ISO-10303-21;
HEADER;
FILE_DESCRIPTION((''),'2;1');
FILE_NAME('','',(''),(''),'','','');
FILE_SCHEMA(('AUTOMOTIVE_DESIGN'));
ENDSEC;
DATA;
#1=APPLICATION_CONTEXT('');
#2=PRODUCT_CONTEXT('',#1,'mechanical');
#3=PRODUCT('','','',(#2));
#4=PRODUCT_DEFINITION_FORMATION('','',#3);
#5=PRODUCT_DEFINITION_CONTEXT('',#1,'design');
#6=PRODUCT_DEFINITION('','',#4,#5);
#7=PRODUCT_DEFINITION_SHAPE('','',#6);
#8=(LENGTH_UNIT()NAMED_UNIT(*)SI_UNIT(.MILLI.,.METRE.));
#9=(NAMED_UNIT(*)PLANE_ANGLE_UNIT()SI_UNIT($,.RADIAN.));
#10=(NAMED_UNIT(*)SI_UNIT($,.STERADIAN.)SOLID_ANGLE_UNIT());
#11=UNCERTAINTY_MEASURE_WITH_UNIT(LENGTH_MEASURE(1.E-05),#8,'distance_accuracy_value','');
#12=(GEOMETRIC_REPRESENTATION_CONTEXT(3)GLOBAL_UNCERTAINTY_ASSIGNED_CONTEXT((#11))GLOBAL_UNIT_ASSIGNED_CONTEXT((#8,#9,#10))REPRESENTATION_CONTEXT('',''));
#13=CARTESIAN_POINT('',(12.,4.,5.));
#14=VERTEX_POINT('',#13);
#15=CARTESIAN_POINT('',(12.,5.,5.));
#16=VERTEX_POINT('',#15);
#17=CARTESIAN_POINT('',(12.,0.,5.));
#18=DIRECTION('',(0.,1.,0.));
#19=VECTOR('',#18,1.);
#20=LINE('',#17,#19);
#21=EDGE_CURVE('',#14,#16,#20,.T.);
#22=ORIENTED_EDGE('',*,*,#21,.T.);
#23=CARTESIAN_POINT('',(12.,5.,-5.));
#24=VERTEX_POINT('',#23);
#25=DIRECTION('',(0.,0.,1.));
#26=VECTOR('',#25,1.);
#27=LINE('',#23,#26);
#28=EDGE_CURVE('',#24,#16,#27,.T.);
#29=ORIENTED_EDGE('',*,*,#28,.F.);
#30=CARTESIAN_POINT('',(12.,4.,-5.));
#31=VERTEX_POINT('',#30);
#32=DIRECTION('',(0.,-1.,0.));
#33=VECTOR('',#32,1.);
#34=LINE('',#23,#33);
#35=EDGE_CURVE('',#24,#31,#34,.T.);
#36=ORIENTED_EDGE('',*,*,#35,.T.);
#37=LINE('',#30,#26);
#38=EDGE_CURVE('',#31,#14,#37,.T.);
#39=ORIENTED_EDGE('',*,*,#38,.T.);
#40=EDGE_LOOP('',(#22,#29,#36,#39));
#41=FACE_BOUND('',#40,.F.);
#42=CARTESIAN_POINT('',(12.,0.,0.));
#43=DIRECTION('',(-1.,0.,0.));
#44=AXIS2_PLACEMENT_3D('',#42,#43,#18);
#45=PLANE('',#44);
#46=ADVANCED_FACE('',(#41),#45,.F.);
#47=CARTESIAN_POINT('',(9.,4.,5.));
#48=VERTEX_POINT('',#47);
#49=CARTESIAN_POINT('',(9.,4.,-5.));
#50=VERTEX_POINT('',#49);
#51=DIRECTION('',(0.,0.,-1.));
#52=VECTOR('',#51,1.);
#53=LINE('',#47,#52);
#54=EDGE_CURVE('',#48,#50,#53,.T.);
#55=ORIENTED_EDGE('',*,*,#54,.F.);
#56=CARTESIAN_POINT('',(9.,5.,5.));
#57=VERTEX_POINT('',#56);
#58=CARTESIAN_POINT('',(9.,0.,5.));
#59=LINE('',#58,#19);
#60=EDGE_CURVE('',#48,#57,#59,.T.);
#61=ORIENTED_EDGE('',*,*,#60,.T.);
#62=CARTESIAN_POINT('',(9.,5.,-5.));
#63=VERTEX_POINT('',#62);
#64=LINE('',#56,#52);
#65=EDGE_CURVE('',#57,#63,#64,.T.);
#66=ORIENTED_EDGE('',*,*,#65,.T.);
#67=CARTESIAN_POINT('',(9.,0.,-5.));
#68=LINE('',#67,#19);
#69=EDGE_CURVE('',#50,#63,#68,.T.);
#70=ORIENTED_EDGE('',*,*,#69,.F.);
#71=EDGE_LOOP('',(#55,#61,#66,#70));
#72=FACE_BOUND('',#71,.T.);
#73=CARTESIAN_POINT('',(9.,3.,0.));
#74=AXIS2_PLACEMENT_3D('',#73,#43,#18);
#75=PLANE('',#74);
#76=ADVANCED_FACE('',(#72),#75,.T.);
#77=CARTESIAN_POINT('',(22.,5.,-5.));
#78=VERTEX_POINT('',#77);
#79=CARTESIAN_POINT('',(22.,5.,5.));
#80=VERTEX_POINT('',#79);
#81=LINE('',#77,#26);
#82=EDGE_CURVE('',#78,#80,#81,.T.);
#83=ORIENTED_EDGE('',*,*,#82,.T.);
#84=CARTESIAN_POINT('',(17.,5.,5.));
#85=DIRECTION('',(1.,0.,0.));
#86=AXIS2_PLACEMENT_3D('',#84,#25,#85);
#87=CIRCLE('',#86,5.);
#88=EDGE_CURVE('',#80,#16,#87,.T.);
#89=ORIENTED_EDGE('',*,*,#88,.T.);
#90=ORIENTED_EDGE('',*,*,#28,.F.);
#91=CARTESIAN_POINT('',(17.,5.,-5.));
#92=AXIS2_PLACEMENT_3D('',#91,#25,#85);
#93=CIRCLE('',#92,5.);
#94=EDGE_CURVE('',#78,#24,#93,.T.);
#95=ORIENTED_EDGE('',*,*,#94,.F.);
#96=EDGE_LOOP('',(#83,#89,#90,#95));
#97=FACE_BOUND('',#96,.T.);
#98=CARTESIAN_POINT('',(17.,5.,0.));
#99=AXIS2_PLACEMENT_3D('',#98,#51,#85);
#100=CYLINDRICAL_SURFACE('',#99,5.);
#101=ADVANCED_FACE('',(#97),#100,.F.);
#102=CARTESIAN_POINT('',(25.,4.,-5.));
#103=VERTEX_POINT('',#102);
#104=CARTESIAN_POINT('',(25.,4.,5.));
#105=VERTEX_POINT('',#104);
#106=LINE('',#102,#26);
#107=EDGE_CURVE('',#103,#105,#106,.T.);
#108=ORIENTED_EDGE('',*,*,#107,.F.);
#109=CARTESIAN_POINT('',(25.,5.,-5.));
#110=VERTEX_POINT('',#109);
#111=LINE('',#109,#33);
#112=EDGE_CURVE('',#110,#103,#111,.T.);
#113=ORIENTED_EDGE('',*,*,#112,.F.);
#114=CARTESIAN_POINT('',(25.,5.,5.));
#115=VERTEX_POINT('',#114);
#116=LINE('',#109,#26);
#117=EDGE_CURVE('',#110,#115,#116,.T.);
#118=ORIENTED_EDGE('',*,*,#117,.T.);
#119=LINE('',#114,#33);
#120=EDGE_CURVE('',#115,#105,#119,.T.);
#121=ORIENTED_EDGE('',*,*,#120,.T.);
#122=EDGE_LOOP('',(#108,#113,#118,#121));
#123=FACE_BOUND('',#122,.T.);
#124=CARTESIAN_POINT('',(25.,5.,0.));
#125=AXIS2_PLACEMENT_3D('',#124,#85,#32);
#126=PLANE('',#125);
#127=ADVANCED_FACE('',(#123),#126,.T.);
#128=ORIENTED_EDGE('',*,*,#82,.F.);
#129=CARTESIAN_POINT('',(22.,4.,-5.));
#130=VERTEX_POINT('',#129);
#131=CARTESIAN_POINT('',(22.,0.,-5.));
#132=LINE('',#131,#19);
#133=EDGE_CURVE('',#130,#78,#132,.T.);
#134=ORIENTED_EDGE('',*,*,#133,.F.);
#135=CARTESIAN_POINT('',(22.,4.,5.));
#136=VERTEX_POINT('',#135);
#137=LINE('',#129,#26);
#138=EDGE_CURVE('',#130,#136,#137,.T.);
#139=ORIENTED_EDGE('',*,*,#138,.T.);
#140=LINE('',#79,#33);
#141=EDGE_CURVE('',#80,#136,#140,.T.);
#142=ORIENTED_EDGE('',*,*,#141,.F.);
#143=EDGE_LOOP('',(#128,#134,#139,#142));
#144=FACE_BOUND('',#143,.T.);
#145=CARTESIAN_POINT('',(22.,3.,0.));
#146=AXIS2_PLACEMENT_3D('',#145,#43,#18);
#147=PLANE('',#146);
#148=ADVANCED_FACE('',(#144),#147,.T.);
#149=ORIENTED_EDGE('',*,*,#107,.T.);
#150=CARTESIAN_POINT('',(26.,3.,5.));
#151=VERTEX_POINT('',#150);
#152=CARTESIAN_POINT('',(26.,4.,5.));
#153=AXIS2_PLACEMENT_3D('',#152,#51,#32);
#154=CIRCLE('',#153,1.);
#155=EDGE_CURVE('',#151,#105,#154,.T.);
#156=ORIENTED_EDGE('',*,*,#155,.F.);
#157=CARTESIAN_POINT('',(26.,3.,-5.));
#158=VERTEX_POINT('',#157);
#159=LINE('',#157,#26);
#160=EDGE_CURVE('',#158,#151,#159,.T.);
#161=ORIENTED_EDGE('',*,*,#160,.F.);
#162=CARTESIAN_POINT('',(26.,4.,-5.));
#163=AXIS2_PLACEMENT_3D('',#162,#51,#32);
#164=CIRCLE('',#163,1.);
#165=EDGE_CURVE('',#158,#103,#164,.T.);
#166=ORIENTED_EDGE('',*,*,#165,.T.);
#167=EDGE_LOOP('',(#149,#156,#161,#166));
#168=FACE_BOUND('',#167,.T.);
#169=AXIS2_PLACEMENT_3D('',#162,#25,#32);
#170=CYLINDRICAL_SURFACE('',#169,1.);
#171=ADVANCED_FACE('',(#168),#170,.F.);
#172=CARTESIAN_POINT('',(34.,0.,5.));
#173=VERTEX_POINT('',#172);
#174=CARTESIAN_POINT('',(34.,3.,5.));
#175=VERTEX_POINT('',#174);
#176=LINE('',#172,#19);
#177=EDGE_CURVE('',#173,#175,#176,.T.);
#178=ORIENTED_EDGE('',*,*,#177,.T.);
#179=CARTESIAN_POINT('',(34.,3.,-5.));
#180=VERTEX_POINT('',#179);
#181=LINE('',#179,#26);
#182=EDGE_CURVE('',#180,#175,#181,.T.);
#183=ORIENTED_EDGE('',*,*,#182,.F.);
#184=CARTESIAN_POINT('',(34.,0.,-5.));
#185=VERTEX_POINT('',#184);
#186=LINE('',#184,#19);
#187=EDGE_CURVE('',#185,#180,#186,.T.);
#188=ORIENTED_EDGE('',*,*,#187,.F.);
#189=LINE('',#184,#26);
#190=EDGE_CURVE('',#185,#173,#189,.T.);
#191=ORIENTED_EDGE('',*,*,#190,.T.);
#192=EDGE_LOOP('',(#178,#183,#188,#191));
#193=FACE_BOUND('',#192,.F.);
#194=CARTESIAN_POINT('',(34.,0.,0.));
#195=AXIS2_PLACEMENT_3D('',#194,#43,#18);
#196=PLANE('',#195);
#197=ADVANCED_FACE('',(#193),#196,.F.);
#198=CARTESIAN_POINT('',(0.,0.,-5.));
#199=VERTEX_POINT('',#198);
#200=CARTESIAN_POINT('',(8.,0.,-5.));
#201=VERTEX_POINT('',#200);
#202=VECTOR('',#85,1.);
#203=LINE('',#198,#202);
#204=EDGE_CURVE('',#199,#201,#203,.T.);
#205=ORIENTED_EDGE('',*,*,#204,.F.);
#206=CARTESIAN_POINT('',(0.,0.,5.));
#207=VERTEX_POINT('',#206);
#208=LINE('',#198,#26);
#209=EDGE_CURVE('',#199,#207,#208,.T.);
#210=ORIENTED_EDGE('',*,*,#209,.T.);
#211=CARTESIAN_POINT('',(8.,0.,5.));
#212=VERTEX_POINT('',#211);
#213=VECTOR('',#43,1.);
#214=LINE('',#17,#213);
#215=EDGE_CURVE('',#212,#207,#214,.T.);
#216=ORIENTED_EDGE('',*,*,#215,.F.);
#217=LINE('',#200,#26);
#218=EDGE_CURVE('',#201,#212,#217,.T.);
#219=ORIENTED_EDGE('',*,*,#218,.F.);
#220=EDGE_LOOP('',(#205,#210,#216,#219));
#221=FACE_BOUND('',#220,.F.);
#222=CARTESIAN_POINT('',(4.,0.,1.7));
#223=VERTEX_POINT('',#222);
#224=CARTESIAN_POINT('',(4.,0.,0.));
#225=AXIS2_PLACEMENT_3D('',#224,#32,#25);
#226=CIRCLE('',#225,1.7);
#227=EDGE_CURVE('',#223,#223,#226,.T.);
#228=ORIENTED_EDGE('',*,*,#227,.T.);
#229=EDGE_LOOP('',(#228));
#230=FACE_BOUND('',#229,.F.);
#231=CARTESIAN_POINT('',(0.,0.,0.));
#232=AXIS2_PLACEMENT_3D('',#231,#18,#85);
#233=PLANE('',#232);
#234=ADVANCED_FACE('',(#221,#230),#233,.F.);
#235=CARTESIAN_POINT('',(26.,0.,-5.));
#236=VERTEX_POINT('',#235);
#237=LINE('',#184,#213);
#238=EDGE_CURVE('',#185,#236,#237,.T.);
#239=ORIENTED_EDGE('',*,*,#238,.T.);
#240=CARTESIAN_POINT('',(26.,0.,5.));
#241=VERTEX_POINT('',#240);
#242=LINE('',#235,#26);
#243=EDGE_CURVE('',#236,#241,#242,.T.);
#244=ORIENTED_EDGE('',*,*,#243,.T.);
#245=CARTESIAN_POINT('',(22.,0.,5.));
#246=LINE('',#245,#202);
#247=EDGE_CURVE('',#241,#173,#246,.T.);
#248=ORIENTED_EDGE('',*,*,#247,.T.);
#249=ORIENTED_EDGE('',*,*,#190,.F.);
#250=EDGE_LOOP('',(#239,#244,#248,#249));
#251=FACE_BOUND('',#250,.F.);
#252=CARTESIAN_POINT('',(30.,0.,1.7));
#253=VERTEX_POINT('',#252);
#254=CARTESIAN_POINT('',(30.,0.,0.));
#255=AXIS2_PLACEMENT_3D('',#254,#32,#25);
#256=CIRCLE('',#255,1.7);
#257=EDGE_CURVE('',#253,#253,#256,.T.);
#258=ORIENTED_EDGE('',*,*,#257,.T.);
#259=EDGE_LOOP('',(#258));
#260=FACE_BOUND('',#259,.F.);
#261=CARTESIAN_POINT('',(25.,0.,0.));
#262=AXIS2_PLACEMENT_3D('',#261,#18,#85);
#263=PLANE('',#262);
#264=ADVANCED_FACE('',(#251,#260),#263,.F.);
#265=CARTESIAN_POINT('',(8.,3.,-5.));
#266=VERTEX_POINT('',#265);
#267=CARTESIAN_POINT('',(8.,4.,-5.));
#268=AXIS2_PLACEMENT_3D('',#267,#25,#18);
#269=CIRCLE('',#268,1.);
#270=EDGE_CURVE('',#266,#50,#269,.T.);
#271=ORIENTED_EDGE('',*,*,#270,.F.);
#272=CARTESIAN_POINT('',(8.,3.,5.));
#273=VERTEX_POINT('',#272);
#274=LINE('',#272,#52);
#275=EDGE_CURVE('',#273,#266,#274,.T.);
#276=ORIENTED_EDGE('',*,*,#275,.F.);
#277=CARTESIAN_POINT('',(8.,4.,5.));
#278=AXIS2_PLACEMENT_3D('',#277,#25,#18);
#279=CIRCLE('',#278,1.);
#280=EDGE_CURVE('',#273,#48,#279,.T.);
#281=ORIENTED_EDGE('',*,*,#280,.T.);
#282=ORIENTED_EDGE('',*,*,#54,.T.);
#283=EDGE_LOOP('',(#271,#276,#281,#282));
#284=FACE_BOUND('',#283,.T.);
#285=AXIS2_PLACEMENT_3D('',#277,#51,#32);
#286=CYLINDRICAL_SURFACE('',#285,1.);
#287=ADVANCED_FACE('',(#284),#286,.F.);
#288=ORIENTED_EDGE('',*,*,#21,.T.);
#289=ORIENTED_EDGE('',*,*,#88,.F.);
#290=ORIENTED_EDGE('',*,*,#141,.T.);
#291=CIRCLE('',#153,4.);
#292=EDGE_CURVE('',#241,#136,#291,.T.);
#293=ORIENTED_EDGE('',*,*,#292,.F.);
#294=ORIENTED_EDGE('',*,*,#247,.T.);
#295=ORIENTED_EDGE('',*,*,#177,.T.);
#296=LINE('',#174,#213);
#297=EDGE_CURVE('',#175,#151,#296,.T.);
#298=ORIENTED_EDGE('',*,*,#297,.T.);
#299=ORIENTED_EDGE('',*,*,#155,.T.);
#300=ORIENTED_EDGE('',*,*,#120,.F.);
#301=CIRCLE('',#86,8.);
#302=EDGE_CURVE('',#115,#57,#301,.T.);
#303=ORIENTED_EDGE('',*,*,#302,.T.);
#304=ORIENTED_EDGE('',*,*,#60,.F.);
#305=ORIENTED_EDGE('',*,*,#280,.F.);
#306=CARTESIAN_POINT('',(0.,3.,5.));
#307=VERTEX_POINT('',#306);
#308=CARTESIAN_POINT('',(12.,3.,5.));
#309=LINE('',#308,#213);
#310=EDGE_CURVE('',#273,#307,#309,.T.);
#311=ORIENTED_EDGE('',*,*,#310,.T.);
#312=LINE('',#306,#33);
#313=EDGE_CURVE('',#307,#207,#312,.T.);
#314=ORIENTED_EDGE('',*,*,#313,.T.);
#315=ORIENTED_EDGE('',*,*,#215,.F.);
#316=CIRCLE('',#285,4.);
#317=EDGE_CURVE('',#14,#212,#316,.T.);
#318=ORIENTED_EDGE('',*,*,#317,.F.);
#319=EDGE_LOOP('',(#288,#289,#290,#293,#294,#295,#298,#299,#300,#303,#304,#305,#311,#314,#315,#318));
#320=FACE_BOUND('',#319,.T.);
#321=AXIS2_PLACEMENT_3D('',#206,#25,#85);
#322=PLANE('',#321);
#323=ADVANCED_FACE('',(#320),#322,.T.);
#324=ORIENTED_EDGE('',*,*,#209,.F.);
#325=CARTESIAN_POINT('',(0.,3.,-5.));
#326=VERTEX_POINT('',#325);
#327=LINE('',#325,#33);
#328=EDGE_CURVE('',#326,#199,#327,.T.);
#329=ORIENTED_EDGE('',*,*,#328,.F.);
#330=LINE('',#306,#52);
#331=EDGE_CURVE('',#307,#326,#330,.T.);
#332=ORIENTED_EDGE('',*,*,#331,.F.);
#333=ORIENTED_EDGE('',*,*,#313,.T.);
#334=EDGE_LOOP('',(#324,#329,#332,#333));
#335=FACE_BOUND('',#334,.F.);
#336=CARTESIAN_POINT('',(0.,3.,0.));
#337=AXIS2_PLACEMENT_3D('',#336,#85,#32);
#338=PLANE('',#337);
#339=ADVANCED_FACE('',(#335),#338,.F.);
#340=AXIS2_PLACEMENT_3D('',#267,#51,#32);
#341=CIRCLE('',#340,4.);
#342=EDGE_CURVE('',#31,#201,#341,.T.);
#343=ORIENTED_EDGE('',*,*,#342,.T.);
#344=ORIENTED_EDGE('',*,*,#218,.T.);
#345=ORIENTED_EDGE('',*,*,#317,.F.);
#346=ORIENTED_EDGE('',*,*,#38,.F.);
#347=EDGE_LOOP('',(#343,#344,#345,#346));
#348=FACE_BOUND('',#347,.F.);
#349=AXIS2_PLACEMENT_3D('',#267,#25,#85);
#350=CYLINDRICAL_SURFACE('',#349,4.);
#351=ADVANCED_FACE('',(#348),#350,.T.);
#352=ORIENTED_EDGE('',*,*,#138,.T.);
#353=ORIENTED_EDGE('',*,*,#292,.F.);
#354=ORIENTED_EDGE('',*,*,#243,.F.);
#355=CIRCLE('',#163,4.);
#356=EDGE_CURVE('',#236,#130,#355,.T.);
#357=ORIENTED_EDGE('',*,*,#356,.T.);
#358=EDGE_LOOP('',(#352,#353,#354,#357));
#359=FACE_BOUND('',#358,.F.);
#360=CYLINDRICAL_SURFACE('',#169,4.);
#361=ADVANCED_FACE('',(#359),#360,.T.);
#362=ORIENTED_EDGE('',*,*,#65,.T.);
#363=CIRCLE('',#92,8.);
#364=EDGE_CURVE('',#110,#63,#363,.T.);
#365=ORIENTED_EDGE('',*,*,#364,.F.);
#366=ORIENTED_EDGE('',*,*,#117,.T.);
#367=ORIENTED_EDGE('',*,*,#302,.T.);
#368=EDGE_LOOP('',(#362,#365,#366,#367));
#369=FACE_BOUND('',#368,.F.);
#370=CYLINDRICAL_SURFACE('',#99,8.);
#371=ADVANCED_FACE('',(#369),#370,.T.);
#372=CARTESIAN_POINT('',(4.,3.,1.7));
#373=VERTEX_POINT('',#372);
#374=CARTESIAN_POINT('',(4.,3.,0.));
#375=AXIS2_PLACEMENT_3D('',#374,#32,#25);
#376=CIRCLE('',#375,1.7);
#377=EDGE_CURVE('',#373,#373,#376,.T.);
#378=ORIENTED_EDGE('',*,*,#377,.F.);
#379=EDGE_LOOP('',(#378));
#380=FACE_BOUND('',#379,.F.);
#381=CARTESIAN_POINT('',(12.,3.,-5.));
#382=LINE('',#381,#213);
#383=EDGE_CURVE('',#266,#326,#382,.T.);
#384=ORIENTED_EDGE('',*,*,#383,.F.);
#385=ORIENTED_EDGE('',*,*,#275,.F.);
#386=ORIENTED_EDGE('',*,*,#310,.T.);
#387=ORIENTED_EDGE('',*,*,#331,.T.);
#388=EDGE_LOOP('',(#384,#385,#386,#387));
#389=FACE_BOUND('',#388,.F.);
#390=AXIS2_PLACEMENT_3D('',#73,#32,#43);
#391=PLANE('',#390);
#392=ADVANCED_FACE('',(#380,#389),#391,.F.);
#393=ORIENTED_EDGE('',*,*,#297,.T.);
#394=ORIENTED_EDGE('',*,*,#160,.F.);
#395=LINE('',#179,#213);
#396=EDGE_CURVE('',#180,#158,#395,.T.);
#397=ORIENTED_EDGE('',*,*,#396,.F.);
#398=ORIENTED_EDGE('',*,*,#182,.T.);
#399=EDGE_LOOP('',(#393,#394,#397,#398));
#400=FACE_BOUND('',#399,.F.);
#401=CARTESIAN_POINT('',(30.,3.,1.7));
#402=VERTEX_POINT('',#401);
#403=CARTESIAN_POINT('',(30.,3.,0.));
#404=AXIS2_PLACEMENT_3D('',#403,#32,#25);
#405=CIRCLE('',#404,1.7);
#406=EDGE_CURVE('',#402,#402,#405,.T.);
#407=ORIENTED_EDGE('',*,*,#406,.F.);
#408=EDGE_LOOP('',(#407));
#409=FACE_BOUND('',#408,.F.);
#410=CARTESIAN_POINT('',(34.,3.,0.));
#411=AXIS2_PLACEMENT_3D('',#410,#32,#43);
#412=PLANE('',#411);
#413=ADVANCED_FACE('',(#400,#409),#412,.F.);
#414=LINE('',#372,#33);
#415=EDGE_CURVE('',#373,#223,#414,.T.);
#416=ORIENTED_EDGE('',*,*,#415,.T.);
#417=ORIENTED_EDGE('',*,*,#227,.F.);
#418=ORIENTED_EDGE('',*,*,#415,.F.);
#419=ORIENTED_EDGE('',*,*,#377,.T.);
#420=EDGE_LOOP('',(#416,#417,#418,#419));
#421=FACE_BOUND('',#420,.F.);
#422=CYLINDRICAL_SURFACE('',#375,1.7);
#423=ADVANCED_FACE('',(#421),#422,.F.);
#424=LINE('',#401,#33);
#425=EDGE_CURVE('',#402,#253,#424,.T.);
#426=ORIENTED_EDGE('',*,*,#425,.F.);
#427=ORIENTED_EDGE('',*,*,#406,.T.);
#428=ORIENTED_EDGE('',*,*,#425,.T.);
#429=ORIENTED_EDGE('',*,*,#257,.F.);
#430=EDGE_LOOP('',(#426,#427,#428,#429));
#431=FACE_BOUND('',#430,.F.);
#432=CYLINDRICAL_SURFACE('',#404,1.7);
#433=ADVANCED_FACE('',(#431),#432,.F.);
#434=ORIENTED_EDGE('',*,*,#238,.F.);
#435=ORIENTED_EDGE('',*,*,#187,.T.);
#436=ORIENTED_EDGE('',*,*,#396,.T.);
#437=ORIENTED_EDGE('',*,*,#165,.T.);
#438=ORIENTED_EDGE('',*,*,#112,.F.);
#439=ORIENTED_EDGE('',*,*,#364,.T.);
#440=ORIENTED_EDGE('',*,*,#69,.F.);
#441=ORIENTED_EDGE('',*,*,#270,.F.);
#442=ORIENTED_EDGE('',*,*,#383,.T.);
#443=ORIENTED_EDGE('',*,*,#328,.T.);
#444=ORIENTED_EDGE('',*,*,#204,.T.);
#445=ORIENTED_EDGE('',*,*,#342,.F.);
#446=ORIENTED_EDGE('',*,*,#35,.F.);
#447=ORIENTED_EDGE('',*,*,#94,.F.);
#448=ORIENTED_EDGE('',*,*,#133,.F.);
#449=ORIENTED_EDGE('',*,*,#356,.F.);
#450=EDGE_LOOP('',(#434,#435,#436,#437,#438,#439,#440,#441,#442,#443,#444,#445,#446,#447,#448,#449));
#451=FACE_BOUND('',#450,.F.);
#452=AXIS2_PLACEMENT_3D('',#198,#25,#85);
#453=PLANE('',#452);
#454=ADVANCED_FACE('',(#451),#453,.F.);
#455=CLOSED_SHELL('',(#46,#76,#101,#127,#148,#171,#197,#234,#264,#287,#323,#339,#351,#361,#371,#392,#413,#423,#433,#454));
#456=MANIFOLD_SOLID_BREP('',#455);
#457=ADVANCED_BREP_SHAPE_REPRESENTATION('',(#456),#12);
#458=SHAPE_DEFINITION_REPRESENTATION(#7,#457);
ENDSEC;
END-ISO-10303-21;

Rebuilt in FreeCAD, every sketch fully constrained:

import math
import FreeCAD as App
import Part
import Sketcher

V = App.Vector


def edges_at(feature, points):
    """Names of the edges that pass closest to the given points."""
    edges = feature.Shape.Edges
    near = lambda p: min(range(len(edges)), key=lambda i: edges[i].distToShape(Part.Vertex(*p))[0])
    return sorted({f"Edge{near(p) + 1}" for p in points})

doc = App.newDocument("Part")
body = doc.addObject("PartDesign::Body", "Body")

# Sketch on XY plane
sketch1 = body.newObject("Sketcher::SketchObject", "Sketch")
sketch1.AttachmentSupport = (doc.getObject("XY_Plane"), [""])
sketch1.MapMode = "FlatFace"
sketch1.addGeometry(Part.LineSegment(V(0, 3, 0), V(0, 0, 0)), False)
sketch1.addGeometry(Part.LineSegment(V(0, 0, 0), V(12, 0, 0)), False)
sketch1.addGeometry(Part.LineSegment(V(12, 0, 0), V(12, 5, 0)), False)
sketch1.addGeometry(Part.ArcOfCircle(Part.Circle(V(17, 5, 0), V(0, 0, 1), 5), math.radians(0), math.radians(180)), False)
sketch1.addGeometry(Part.LineSegment(V(22, 5, 0), V(22, 0, 0)), False)
sketch1.addGeometry(Part.LineSegment(V(22, 0, 0), V(34, 0, 0)), False)
sketch1.addGeometry(Part.LineSegment(V(34, 0, 0), V(34, 3, 0)), False)
sketch1.addGeometry(Part.LineSegment(V(34, 3, 0), V(25, 3, 0)), False)
sketch1.addGeometry(Part.LineSegment(V(25, 3, 0), V(25, 5, 0)), False)
sketch1.addGeometry(Part.ArcOfCircle(Part.Circle(V(17, 5, 0), V(0, 0, 1), 8), math.radians(0), math.radians(180)), False)
sketch1.addGeometry(Part.LineSegment(V(9, 5, 0), V(9, 3, 0)), False)
sketch1.addGeometry(Part.LineSegment(V(9, 3, 0), V(0, 3, 0)), False)
sketch1.addConstraint(Sketcher.Constraint("Coincident", 0, 2, 1, 1))
sketch1.addConstraint(Sketcher.Constraint("Coincident", 1, 2, 2, 1))
sketch1.addConstraint(Sketcher.Constraint("Tangent", 2, 2, 3, 2))
sketch1.addConstraint(Sketcher.Constraint("Tangent", 3, 1, 4, 1))
sketch1.addConstraint(Sketcher.Constraint("Coincident", 4, 2, 5, 1))
sketch1.addConstraint(Sketcher.Constraint("Coincident", 5, 2, 6, 1))
sketch1.addConstraint(Sketcher.Constraint("Coincident", 6, 2, 7, 1))
sketch1.addConstraint(Sketcher.Constraint("Coincident", 7, 2, 8, 1))
sketch1.addConstraint(Sketcher.Constraint("Tangent", 8, 2, 9, 1))
sketch1.addConstraint(Sketcher.Constraint("Tangent", 9, 2, 10, 1))
sketch1.addConstraint(Sketcher.Constraint("Coincident", 10, 2, 11, 1))
sketch1.addConstraint(Sketcher.Constraint("Coincident", 11, 2, 0, 1))
sketch1.addConstraint(Sketcher.Constraint("Vertical", 0))
sketch1.addConstraint(Sketcher.Constraint("Horizontal", 1))
sketch1.addConstraint(Sketcher.Constraint("Vertical", 2))
sketch1.addConstraint(Sketcher.Constraint("Vertical", 4))
sketch1.addConstraint(Sketcher.Constraint("Horizontal", 5))
sketch1.addConstraint(Sketcher.Constraint("Vertical", 6))
sketch1.addConstraint(Sketcher.Constraint("Horizontal", 7))
sketch1.addConstraint(Sketcher.Constraint("Vertical", 8))
sketch1.addConstraint(Sketcher.Constraint("Vertical", 10))
sketch1.addConstraint(Sketcher.Constraint("Horizontal", 11))
sketch1.addConstraint(Sketcher.Constraint("Coincident", 0, 2, -1, 1))
sketch1.addConstraint(Sketcher.Constraint("Coincident", 9, 3, 3, 3))
sketch1.addConstraint(Sketcher.Constraint("PointOnObject", 4, 2, -1))
sketch1.addConstraint(Sketcher.Constraint("Horizontal", 7, 2, 10, 2))
sketch1.addConstraint(Sketcher.Constraint("Equal", 1, 5))
sketch1.addConstraint(Sketcher.Constraint("Radius", 3, 5.0))
sketch1.addConstraint(Sketcher.Constraint("DistanceX", 1, 1, 1, 2, 12.0))
sketch1.addConstraint(Sketcher.Constraint("DistanceY", 0, 2, 0, 1, 3.0))
sketch1.addConstraint(Sketcher.Constraint("DistanceY", 2, 1, 2, 2, 5.0))
sketch1.addConstraint(Sketcher.Constraint("Radius", 9, 8.0))
pad1 = body.newObject("PartDesign::Pad", "Pad")
pad1.Profile = sketch1
pad1.Length = 10
pad1.Midplane = True
doc.recompute()

fillet = body.newObject("PartDesign::Fillet", "Fillet")
fillet.Base = (pad1, edges_at(pad1, [(25, 3, 0), (9, 3, 0)]))
fillet.Radius = 1
doc.recompute()

fillet2 = body.newObject("PartDesign::Fillet", "Fillet001")
fillet2.Base = (fillet, edges_at(fillet, [(22, 0, 0), (12, 0, 0)]))
fillet2.Radius = 4

# Sketch on XZ plane
sketch2 = body.newObject("Sketcher::SketchObject", "Sketch001")
sketch2.AttachmentSupport = (doc.getObject("XZ_Plane"), [""])
sketch2.MapMode = "FlatFace"
sketch2.AttachmentOffset = App.Placement(V(0, 0, -3), App.Rotation())
sketch2.addGeometry(Part.Circle(V(4, 0, 0), V(0, 0, 1), 1.7), False)
sketch2.addGeometry(Part.Circle(V(30, 0, 0), V(0, 0, 1), 1.7), False)
sketch2.addConstraint(Sketcher.Constraint("Equal", 0, 1))
sketch2.addConstraint(Sketcher.Constraint("PointOnObject", 0, 3, -1))
sketch2.addConstraint(Sketcher.Constraint("PointOnObject", 1, 3, -1))
sketch2.addConstraint(Sketcher.Constraint("Diameter", 0, 3.4))
sketch2.addConstraint(Sketcher.Constraint("DistanceX", -1, 1, 0, 3, 4.0))
sketch2.addConstraint(Sketcher.Constraint("DistanceX", -1, 1, 1, 3, 30.0))
doc.recompute()
hole = body.newObject("PartDesign::Hole", "Hole")
hole.Profile = sketch2
hole.ThreadType = "None"
hole.Diameter = 3.4
hole.DepthType = "ThroughAll"
hole.Reversed = True

doc.recompute()
